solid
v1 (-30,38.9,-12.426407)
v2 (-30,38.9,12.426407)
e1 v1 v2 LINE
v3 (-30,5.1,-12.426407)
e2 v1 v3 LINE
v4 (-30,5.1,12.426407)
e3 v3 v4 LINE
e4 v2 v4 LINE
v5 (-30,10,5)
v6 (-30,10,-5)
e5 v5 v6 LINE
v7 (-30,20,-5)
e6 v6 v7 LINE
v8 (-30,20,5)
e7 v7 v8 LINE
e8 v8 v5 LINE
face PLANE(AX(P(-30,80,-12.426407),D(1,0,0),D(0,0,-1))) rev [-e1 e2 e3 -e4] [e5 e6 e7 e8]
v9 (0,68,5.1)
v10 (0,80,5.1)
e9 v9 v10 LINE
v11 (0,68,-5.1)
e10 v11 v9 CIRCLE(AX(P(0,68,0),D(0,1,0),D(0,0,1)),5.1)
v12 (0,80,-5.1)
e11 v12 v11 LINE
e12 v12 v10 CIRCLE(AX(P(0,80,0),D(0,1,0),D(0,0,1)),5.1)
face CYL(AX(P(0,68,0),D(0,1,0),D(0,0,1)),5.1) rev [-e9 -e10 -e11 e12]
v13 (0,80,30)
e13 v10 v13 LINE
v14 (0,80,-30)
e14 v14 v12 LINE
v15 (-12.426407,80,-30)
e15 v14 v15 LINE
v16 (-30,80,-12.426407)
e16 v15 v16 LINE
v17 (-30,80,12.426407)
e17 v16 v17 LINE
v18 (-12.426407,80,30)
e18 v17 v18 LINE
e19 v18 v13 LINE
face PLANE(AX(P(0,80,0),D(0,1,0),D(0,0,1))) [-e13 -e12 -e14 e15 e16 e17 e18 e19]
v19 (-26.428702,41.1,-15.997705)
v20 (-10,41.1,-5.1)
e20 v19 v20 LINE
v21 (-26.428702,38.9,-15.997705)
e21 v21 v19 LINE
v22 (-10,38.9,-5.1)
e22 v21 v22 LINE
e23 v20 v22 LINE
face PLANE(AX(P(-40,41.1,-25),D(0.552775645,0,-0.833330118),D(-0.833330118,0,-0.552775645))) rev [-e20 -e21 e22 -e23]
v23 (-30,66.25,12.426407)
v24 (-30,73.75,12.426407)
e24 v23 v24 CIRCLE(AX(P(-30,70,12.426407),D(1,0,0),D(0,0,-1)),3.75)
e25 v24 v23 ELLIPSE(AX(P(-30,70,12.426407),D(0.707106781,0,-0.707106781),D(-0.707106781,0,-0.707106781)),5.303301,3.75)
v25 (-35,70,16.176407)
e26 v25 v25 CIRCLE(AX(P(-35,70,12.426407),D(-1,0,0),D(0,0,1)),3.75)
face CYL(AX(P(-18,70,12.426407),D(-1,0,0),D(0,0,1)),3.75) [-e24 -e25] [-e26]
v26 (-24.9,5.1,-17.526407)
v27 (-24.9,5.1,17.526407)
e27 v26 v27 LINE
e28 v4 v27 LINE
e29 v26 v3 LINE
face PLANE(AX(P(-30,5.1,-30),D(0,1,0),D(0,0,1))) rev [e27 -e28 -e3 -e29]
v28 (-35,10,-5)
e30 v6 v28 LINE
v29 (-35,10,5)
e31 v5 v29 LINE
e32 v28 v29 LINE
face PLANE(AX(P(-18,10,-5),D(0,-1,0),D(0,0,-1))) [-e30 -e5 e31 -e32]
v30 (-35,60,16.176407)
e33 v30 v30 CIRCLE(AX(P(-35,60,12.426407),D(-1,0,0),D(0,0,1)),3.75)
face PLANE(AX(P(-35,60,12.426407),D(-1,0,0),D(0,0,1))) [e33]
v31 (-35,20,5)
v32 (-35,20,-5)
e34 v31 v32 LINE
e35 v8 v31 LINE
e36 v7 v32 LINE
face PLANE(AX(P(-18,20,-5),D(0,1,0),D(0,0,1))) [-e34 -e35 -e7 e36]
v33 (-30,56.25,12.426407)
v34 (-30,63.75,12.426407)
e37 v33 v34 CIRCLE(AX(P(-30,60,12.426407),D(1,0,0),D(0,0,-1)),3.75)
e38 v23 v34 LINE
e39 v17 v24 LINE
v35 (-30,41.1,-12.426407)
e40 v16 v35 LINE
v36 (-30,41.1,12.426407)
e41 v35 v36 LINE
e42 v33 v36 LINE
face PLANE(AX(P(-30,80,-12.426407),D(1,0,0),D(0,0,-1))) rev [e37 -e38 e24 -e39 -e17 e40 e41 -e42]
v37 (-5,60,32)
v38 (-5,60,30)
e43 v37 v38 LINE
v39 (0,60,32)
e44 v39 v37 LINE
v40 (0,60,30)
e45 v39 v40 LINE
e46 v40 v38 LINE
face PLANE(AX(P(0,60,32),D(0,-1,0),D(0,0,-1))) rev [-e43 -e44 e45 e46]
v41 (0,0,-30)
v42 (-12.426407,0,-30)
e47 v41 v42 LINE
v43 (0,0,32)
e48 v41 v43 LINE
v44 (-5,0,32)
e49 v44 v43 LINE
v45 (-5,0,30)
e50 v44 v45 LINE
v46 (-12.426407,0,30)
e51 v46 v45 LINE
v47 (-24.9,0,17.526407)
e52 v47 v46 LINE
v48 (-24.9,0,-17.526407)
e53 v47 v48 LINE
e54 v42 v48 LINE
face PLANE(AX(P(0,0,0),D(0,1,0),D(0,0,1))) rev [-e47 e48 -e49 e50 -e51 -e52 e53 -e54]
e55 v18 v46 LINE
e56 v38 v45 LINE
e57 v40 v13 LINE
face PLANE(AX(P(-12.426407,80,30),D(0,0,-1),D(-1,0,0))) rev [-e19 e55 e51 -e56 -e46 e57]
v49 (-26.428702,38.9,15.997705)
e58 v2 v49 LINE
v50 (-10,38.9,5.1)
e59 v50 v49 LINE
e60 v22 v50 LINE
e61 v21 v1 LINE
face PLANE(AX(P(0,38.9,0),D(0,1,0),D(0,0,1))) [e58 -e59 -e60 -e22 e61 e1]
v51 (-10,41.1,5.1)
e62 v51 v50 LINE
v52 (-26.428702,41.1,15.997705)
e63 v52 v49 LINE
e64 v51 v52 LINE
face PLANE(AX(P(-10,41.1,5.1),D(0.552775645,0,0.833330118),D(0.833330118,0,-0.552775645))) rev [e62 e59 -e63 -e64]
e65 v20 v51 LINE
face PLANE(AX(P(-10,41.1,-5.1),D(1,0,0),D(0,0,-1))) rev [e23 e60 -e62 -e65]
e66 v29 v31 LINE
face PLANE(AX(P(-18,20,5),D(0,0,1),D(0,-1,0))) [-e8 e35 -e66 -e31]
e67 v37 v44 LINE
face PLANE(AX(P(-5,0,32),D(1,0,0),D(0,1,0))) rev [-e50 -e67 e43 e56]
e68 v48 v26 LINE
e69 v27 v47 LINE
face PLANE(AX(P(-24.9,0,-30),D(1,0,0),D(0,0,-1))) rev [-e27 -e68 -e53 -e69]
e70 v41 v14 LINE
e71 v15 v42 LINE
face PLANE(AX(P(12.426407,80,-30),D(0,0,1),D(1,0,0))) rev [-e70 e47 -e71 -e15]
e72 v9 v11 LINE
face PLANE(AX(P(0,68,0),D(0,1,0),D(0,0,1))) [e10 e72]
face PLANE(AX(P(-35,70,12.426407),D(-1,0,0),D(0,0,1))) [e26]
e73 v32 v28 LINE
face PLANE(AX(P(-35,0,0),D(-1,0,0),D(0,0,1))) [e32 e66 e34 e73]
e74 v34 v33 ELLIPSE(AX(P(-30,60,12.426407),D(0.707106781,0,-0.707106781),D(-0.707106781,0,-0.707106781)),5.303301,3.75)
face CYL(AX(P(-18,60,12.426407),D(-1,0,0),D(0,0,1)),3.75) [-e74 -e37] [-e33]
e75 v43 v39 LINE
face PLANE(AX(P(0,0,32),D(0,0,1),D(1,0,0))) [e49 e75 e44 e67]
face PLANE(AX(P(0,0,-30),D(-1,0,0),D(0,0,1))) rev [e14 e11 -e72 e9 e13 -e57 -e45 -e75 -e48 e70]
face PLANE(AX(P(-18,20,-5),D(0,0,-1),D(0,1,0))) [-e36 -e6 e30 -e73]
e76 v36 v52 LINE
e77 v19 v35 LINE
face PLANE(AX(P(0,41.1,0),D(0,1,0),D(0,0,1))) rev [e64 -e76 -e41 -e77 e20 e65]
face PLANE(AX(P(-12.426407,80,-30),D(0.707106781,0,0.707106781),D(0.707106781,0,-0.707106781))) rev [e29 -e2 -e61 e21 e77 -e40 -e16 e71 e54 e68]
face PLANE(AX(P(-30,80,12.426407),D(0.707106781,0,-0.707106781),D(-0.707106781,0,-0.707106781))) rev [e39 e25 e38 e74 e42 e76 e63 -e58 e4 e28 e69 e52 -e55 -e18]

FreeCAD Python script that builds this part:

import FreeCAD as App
import Part
import Sketcher

V = App.Vector
Q = App.Units.Quantity


def add_polygon(sketch, points):
    """Adds a closed chain of lines whose ends are joined by coincident constraints."""
    first, n = sketch.GeometryCount, len(points)
    for a, b in zip(points, points[1:] + points[:1]):
        sketch.addGeometry(Part.LineSegment(App.Vector(*a, 0), App.Vector(*b, 0)), False)
    for i in range(n):
        sketch.addConstraint(Sketcher.Constraint("Coincident", first + i, 2, first + (i + 1) % n, 1))

doc = App.newDocument("Part")
body = doc.addObject("PartDesign::Body", "Body")

sketch1 = doc.addObject("Sketcher::SketchObject", "Sketch")
body.addObject(sketch1)
sketch1.AttachmentSupport = (doc.XZ_Plane, [""])
sketch1.MapMode = "FlatFace"
add_polygon(sketch1, [(12.426407, 30), (30, 12.426407), (30, -12.426407), (12.426407, -30), (-12.426407, -30), (-30, -12.426407), (-30, 12.426407), (-12.426407, 30)])
sketch1.addConstraint(Sketcher.Constraint("Vertical", 1))
sketch1.addConstraint(Sketcher.Constraint("Horizontal", 3))
sketch1.addConstraint(Sketcher.Constraint("Vertical", 5))
sketch1.addConstraint(Sketcher.Constraint("Horizontal", 7))
sketch1.addConstraint(Sketcher.Constraint("Symmetric", 0, 2, 4, 2, -1, 1))
sketch1.addConstraint(Sketcher.Constraint("Symmetric", 2, 2, 6, 2, -1, 1))
sketch1.addConstraint(Sketcher.Constraint("Perpendicular", 0, 2))
sketch1.addConstraint(Sketcher.Constraint("Perpendicular", 2, 4))
sketch1.addConstraint(Sketcher.Constraint("Perpendicular", 4, 6))
sketch1.addConstraint(Sketcher.Constraint("Horizontal", 1, 2, 4, 2))
sketch1.addConstraint(Sketcher.Constraint("Vertical", 3, 2, 6, 2))
sketch1.addConstraint(Sketcher.Constraint("Equal", 7, 1))
sketch1.addConstraint(Sketcher.Constraint("DistanceX", -1, 1, 0, 2, Q("30 mm")))
sketch1.addConstraint(Sketcher.Constraint("DistanceX", 3, 2, 3, 1, Q("24.852814 mm")))
pad1 = doc.addObject("PartDesign::Pad", "Pad")
body.addObject(pad1)
pad1.Profile = sketch1
pad1.Length = 80
pad1.Reversed = True

sketch2 = doc.addObject("Sketcher::SketchObject", "Sketch001")
body.addObject(sketch2)
sketch2.AttachmentSupport = (doc.XZ_Plane, [""])
sketch2.MapMode = "FlatFace"
sketch2.AttachmentOffset = App.Placement(V(0, 0, -40), App.Rotation())
add_polygon(sketch2, [(40, -25), (10, -5.1), (10, 5.1), (40, 25)])
sketch2.addConstraint(Sketcher.Constraint("Vertical", 1))
sketch2.addConstraint(Sketcher.Constraint("Vertical", 3))
sketch2.addConstraint(Sketcher.Constraint("Equal", 0, 2))
sketch2.addConstraint(Sketcher.Constraint("DistanceY", 3, 2, 3, 1, Q("50 mm")))
sketch2.addConstraint(Sketcher.Constraint("DistanceY", 1, 1, 1, 2, Q("10.2 mm")))
sketch2.addConstraint(Sketcher.Constraint("DistanceX", -1, 1, 0, 2, Q("10 mm")))
sketch2.addConstraint(Sketcher.Constraint("DistanceX", -1, 1, 2, 2, Q("40 mm")))
sketch2.addConstraint(Sketcher.Constraint("DistanceY", -1, 1, 2, 2, Q("25 mm")))
pocket1 = doc.addObject("PartDesign::Pocket", "Pocket")
body.addObject(pocket1)
pocket1.Profile = sketch2
pocket1.Length = 2.2
pocket1.Midplane = True
doc.recompute()

mirrored = doc.addObject("PartDesign::Mirrored", "Mirrored")
body.addObject(mirrored)
mirrored.Originals = [pocket1]
mirrored.MirrorPlane = (doc.YZ_Plane, [""])
body.Tip = mirrored

sketch3 = doc.addObject("Sketcher::SketchObject", "Sketch002")
body.addObject(sketch3)
sketch3.AttachmentSupport = (doc.XZ_Plane, [""])
sketch3.MapMode = "FlatFace"
sketch3.AttachmentOffset = App.Placement(V(0, 0, -80), App.Rotation())
add_polygon(sketch3, [(0, -30), (0, 30), (30, 30), (30, -30)])
sketch3.addConstraint(Sketcher.Constraint("Vertical", 0))
sketch3.addConstraint(Sketcher.Constraint("Horizontal", 1))
sketch3.addConstraint(Sketcher.Constraint("Vertical", 2))
sketch3.addConstraint(Sketcher.Constraint("Horizontal", 3))
sketch3.addConstraint(Sketcher.Constraint("Symmetric", 0, 2, 3, 2, -1, 1))
sketch3.addConstraint(Sketcher.Constraint("DistanceX", 1, 1, 1, 2, Q("30 mm")))
sketch3.addConstraint(Sketcher.Constraint("DistanceY", 0, 1, 0, 2, Q("60 mm")))
pocket2 = doc.addObject("PartDesign::Pocket", "Pocket001")
body.addObject(pocket2)
pocket2.Profile = sketch3
pocket2.Type = "ThroughAll"
pocket2.Reversed = True

sketch4 = doc.addObject("Sketcher::SketchObject", "Sketch003")
body.addObject(sketch4)
sketch4.AttachmentSupport = (doc.XZ_Plane, [""])
sketch4.MapMode = "FlatFace"
sketch4.AttachmentOffset = App.Placement(V(0, 0, -80), App.Rotation())
sketch4.addGeometry(Part.Circle(V(0, 0, 0), V(0, 0, 1), 5.1), False)
sketch4.addConstraint(Sketcher.Constraint("Coincident", 0, 3, -1, 1))
sketch4.addConstraint(Sketcher.Constraint("Diameter", 0, Q("10.2 mm")))
pocket3 = doc.addObject("PartDesign::Pocket", "Pocket002")
body.addObject(pocket3)
pocket3.Profile = sketch4
pocket3.Length = 12
pocket3.Reversed = True

sketch5 = doc.addObject("Sketcher::SketchObject", "Sketch004")
body.addObject(sketch5)
sketch5.AttachmentSupport = (doc.YZ_Plane, [""])
sketch5.MapMode = "FlatFace"
sketch5.AttachmentOffset = App.Placement(V(0, 0, -30), App.Rotation())
sketch5.addGeometry(Part.Circle(V(70, 12.426407, 0), V(0, 0, 1), 3.75), False)
sketch5.addGeometry(Part.Circle(V(60, 12.426407, 0), V(0, 0, 1), 3.75), False)
add_polygon(sketch5, [(20, -5), (10, -5), (10, 5), (20, 5)])
sketch5.addConstraint(Sketcher.Constraint("Horizontal", 2))
sketch5.addConstraint(Sketcher.Constraint("Vertical", 3))
sketch5.addConstraint(Sketcher.Constraint("Horizontal", 4))
sketch5.addConstraint(Sketcher.Constraint("Vertical", 5))
sketch5.addConstraint(Sketcher.Constraint("Equal", 0, 1))
sketch5.addConstraint(Sketcher.Constraint("Horizontal", 0, 3, 1, 3))
sketch5.addConstraint(Sketcher.Constraint("Equal", 4, 3))
sketch5.addConstraint(Sketcher.Constraint("Diameter", 0, Q("7.5 mm")))
sketch5.addConstraint(Sketcher.Constraint("DistanceX", 2, 2, 2, 1, Q("10 mm")))
sketch5.addConstraint(Sketcher.Constraint("DistanceX", -1, 1, 0, 3, Q("70 mm")))
sketch5.addConstraint(Sketcher.Constraint("DistanceX", -1, 1, 1, 3, Q("60 mm")))
sketch5.addConstraint(Sketcher.Constraint("DistanceX", -1, 1, 2, 2, Q("10 mm")))
sketch5.addConstraint(Sketcher.Constraint("DistanceY", 2, 2, -1, 1, Q("5 mm")))
sketch5.addConstraint(Sketcher.Constraint("DistanceY", -1, 1, 0, 3, Q("12.426407 mm")))
pad2 = doc.addObject("PartDesign::Pad", "Pad001")
body.addObject(pad2)
pad2.Profile = sketch5
pad2.Type = "TwoLengths"
pad2.Length = 5
pad2.Length2 = 12
pad2.Reversed = True

sketch6 = doc.addObject("Sketcher::SketchObject", "Sketch005")
body.addObject(sketch6)
sketch6.AttachmentSupport = (doc.XY_Plane, [""])
sketch6.MapMode = "FlatFace"
sketch6.AttachmentOffset = App.Placement(V(0, 0, 30), App.Rotation())
add_polygon(sketch6, [(-5, 60), (-5, 0), (0, 0), (0, 60)])
sketch6.addConstraint(Sketcher.Constraint("Vertical", 0))
sketch6.addConstraint(Sketcher.Constraint("Horizontal", 1))
sketch6.addConstraint(Sketcher.Constraint("Vertical", 2))
sketch6.addConstraint(Sketcher.Constraint("Horizontal", 3))
sketch6.addConstraint(Sketcher.Constraint("Coincident", 1, 2, -1, 1))
sketch6.addConstraint(Sketcher.Constraint("DistanceX", 1, 1, 1, 2, Q("5 mm")))
sketch6.addConstraint(Sketcher.Constraint("DistanceY", 0, 2, 0, 1, Q("60 mm")))
pad3 = doc.addObject("PartDesign::Pad", "Pad002")
body.addObject(pad3)
pad3.Profile = sketch6
pad3.Length = 2

sketch7 = doc.addObject("Sketcher::SketchObject", "Sketch006")
body.addObject(sketch7)
sketch7.AttachmentSupport = (doc.XY_Plane, [""])
sketch7.MapMode = "FlatFace"
sketch7.AttachmentOffset = App.Placement(V(0, 0, 30), App.Rotation())
add_polygon(sketch7, [(-30, 5.1), (-30, 0), (-24.9, 0), (-24.9, 5.1)])
sketch7.addConstraint(Sketcher.Constraint("Vertical", 0))
sketch7.addConstraint(Sketcher.Constraint("Horizontal", 1))
sketch7.addConstraint(Sketcher.Constraint("Vertical", 2))
sketch7.addConstraint(Sketcher.Constraint("Horizontal", 3))
sketch7.addConstraint(Sketcher.Constraint("PointOnObject", 0, 2, -1))
sketch7.addConstraint(Sketcher.Constraint("Equal", 3, 0))
sketch7.addConstraint(Sketcher.Constraint("DistanceX", 1, 1, 1, 2, Q("5.1 mm")))
sketch7.addConstraint(Sketcher.Constraint("DistanceX", 0, 2, -1, 1, Q("30 mm")))
pocket4 = doc.addObject("PartDesign::Pocket", "Pocket003")
body.addObject(pocket4)
pocket4.Profile = sketch7
pocket4.Type = "ThroughAll"

doc.recompute()
